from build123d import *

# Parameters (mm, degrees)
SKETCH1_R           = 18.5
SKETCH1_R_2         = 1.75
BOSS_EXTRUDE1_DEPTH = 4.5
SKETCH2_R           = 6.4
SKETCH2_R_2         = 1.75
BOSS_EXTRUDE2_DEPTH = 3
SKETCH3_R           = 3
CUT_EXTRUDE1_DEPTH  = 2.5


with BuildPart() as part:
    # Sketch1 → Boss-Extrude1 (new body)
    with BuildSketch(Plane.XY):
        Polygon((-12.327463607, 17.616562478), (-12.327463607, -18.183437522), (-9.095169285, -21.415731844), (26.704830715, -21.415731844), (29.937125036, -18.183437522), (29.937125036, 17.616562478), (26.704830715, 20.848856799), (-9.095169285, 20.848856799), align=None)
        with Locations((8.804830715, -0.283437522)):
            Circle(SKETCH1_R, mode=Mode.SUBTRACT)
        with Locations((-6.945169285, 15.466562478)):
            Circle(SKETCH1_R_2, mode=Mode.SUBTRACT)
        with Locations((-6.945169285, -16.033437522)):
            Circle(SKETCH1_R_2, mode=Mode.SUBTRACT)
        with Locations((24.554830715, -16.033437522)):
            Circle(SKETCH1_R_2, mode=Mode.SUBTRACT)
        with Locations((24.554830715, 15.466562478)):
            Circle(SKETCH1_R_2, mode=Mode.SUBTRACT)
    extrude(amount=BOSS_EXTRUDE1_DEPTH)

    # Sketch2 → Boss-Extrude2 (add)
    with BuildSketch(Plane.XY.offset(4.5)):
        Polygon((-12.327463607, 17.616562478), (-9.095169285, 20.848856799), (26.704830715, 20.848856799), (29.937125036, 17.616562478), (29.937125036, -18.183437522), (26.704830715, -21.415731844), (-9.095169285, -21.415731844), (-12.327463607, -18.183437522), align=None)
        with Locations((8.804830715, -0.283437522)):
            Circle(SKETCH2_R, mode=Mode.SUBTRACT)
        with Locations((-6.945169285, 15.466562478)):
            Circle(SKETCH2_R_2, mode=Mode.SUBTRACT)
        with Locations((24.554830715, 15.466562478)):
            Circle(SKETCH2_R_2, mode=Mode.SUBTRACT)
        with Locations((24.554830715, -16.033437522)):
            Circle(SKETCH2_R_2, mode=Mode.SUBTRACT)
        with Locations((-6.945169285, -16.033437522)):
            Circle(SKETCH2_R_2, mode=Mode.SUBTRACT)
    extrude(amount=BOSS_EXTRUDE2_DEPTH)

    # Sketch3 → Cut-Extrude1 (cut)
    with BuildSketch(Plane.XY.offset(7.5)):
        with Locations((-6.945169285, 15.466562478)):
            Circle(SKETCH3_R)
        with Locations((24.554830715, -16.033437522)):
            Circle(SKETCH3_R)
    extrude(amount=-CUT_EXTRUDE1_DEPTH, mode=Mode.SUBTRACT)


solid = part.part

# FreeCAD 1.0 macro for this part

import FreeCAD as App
import Part
import Sketcher
from FreeCAD import Vector


def add_polygon(sketch, points):
    """Adds a closed chain of lines whose ends are joined by coincident constraints."""
    first, n = sketch.GeometryCount, len(points)
    for a, b in zip(points, points[1:] + points[:1]):
        sketch.addGeometry(Part.LineSegment(App.Vector(*a, 0), App.Vector(*b, 0)), False)
    for i in range(n):
        sketch.addConstraint(Sketcher.Constraint("Coincident", first + i, 2, first + (i + 1) % n, 1))

doc = App.newDocument("Part")
params = doc.addObject("Spreadsheet::Sheet", "Params")
for row, (alias, value) in enumerate([
    ("sketch1_diameter", "37 mm"),
    ("sketch1_diameter2", "3.5 mm"),
    ("sketch1_width", "35.8 mm"),
    ("pad1_length", "4.5 mm"),
    ("sketch2_diameter", "3.5 mm"),
    ("sketch2_diameter2", "12.8 mm"),
    ("sketch2_width", "35.8 mm"),
    ("pad2_length", "3 mm"),
    ("sketch3_diameter", "6 mm"),
    ("pocket1_length", "2.5 mm"),
], start=1):
    params.set(f"A{row}", alias)
    params.set(f"B{row}", "=" + value)
    params.setAlias(f"B{row}", alias)

body = doc.addObject("PartDesign::Body", "Body")

# Sketch on XY plane
sketch1 = body.newObject("Sketcher::SketchObject", "Sketch")
sketch1.AttachmentSupport = (doc.getObject("XY_Plane"), [""])
sketch1.MapMode = "FlatFace"
add_polygon(sketch1, [(-12.3, 17.6), (-12.3, -18.2), (-9.1, -21.4), (26.7, -21.4), (29.9, -18.2), (29.9, 17.6), (26.7, 20.8), (-9.1, 20.8)])  # lines 0-7
sketch1.addGeometry(Part.Circle(Vector(-6.9, -16, 0), Vector(0, 0, 1), 1.8), False)  # 8
sketch1.addGeometry(Part.Circle(Vector(24.6, -16, 0), Vector(0, 0, 1), 1.8), False)  # 9
sketch1.addGeometry(Part.Circle(Vector(-6.9, 15.5, 0), Vector(0, 0, 1), 1.8), False)  # 10
sketch1.addGeometry(Part.Circle(Vector(8.8, -0.3, 0), Vector(0, 0, 1), 18.5), False)  # 11
sketch1.addGeometry(Part.Circle(Vector(24.6, 15.5, 0), Vector(0, 0, 1), 1.8), False)  # 12
sketch1.addConstraint(Sketcher.Constraint("Vertical", 0))
sketch1.addConstraint(Sketcher.Constraint("Horizontal", 2))
sketch1.addConstraint(Sketcher.Constraint("Vertical", 4))
sketch1.addConstraint(Sketcher.Constraint("Horizontal", 6))
sketch1.addConstraint(Sketcher.Constraint("Equal", 8, 9))
sketch1.addConstraint(Sketcher.Constraint("Equal", 9, 10))
sketch1.addConstraint(Sketcher.Constraint("Equal", 10, 12))
sketch1.addConstraint(Sketcher.Constraint("Perpendicular", 1, 3))
sketch1.addConstraint(Sketcher.Constraint("Perpendicular", 3, 5))
sketch1.addConstraint(Sketcher.Constraint("Perpendicular", 5, 7))
sketch1.addConstraint(Sketcher.Constraint("Horizontal", 8, 3, 9, 3))
sketch1.addConstraint(Sketcher.Constraint("Horizontal", 10, 3, 12, 3))
sketch1.addConstraint(Sketcher.Constraint("Horizontal", 0, 2, 3, 2))
sketch1.addConstraint(Sketcher.Constraint("Horizontal", 4, 2, 7, 2))
sketch1.addConstraint(Sketcher.Constraint("Vertical", 8, 3, 10, 3))
sketch1.addConstraint(Sketcher.Constraint("Vertical", 9, 3, 12, 3))
sketch1.addConstraint(Sketcher.Constraint("Vertical", 2, 2, 5, 2))
sketch1.addConstraint(Sketcher.Constraint("Vertical", 1, 2, 6, 2))
sketch1.addConstraint(Sketcher.Constraint("Equal", 6, 0))
sketch1.addConstraint(Sketcher.Constraint("Diameter", 11, 37.0))
sketch1.addConstraint(Sketcher.Constraint("Diameter", 8, 3.5))
sketch1.addConstraint(Sketcher.Constraint("DistanceX", 2, 1, 2, 2, 35.8))
sketch1.addConstraint(Sketcher.Constraint("DistanceX", 8, 3, 9, 3, 31.5))
sketch1.addConstraint(Sketcher.Constraint("DistanceY", 8, 3, 10, 3, 31.5))
sketch1.addConstraint(Sketcher.Constraint("DistanceY", 0, 2, 11, 3, 17.9))
sketch1.addConstraint(Sketcher.Constraint("DistanceX", 1, 2, 11, 3, 17.9))
sketch1.addConstraint(Sketcher.Constraint("DistanceX", 8, 3, 11, 3, 15.75))
sketch1.addConstraint(Sketcher.Constraint("DistanceY", 8, 3, 11, 3, 15.75))
sketch1.addConstraint(Sketcher.Constraint("DistanceX", 8, 3, -1, 1, 6.945169))
sketch1.addConstraint(Sketcher.Constraint("DistanceY", 1, 2, -1, 1, 21.415732))
sketch1.addConstraint(Sketcher.Constraint("Distance", 1, 4.571154))
sketch1.setExpression("Constraints[27]", "Params.sketch1_diameter")
sketch1.setExpression("Constraints[28]", "Params.sketch1_diameter2")
sketch1.setExpression("Constraints[29]", "Params.sketch1_width")
pad1 = body.newObject("PartDesign::Pad", "Pad")
pad1.Profile = sketch1
pad1.setExpression("Length", "Params.pad1_length")

# Sketch on XY plane
sketch2 = body.newObject("Sketcher::SketchObject", "Sketch001")
sketch2.AttachmentSupport = (doc.getObject("XY_Plane"), [""])
sketch2.MapMode = "FlatFace"
sketch2.AttachmentOffset = App.Placement(Vector(0, 0, 4.5), App.Rotation())
add_polygon(sketch2, [(-9.1, 20.8), (-12.3, 17.6), (-12.3, -18.2), (-9.1, -21.4), (26.7, -21.4), (29.9, -18.2), (29.9, 17.6), (26.7, 20.8)])  # lines 0-7
sketch2.addGeometry(Part.Circle(Vector(24.6, -16, 0), Vector(0, 0, 1), 1.8), False)  # 8
sketch2.addGeometry(Part.Circle(Vector(-6.9, -16, 0), Vector(0, 0, 1), 1.8), False)  # 9
sketch2.addGeometry(Part.Circle(Vector(24.6, 15.5, 0), Vector(0, 0, 1), 1.8), False)  # 10
sketch2.addGeometry(Part.Circle(Vector(8.8, -0.3, 0), Vector(0, 0, 1), 6.4), False)  # 11
sketch2.addGeometry(Part.Circle(Vector(-6.9, 15.5, 0), Vector(0, 0, 1), 1.8), False)  # 12
sketch2.addConstraint(Sketcher.Constraint("Vertical", 1))
sketch2.addConstraint(Sketcher.Constraint("Horizontal", 3))
sketch2.addConstraint(Sketcher.Constraint("Vertical", 5))
sketch2.addConstraint(Sketcher.Constraint("Horizontal", 7))
sketch2.addConstraint(Sketcher.Constraint("Equal", 8, 9))
sketch2.addConstraint(Sketcher.Constraint("Equal", 9, 10))
sketch2.addConstraint(Sketcher.Constraint("Equal", 10, 12))
sketch2.addConstraint(Sketcher.Constraint("Perpendicular", 0, 2))
sketch2.addConstraint(Sketcher.Constraint("Perpendicular", 2, 4))
sketch2.addConstraint(Sketcher.Constraint("Perpendicular", 4, 6))
sketch2.addConstraint(Sketcher.Constraint("Horizontal", 8, 3, 9, 3))
sketch2.addConstraint(Sketcher.Constraint("Horizontal", 10, 3, 12, 3))
sketch2.addConstraint(Sketcher.Constraint("Horizontal", 1, 2, 4, 2))
sketch2.addConstraint(Sketcher.Constraint("Horizontal", 0, 2, 5, 2))
sketch2.addConstraint(Sketcher.Constraint("Vertical", 8, 3, 10, 3))
sketch2.addConstraint(Sketcher.Constraint("Vertical", 9, 3, 12, 3))
sketch2.addConstraint(Sketcher.Constraint("Vertical", 3, 2, 6, 2))
sketch2.addConstraint(Sketcher.Constraint("Vertical", 2, 2, 7, 2))
sketch2.addConstraint(Sketcher.Constraint("Equal", 7, 1))
sketch2.addConstraint(Sketcher.Constraint("Diameter", 8, 3.5))
sketch2.addConstraint(Sketcher.Constraint("Diameter", 11, 12.8))
sketch2.addConstraint(Sketcher.Constraint("DistanceX", 3, 1, 3, 2, 35.8))
sketch2.addConstraint(Sketcher.Constraint("DistanceX", 9, 3, 8, 3, 31.5))
sketch2.addConstraint(Sketcher.Constraint("DistanceY", 8, 3, 10, 3, 31.5))
sketch2.addConstraint(Sketcher.Constraint("DistanceY", 11, 3, 0, 2, 17.9))
sketch2.addConstraint(Sketcher.Constraint("DistanceX", 2, 2, 11, 3, 17.9))
sketch2.addConstraint(Sketcher.Constraint("DistanceX", 9, 3, 11, 3, 15.75))
sketch2.addConstraint(Sketcher.Constraint("DistanceY", 9, 3, 11, 3, 15.75))
sketch2.addConstraint(Sketcher.Constraint("DistanceX", -1, 1, 8, 3, 24.554831))
sketch2.addConstraint(Sketcher.Constraint("DistanceY", 2, 2, -1, 1, 21.415732))
sketch2.addConstraint(Sketcher.Constraint("Distance", 0, 4.571154))
sketch2.setExpression("Constraints[27]", "Params.sketch2_diameter")
sketch2.setExpression("Constraints[28]", "Params.sketch2_diameter2")
sketch2.setExpression("Constraints[29]", "Params.sketch2_width")
pad2 = body.newObject("PartDesign::Pad", "Pad001")
pad2.Profile = sketch2
pad2.setExpression("Length", "Params.pad2_length")

# Sketch on XY plane
sketch3 = body.newObject("Sketcher::SketchObject", "Sketch002")
sketch3.AttachmentSupport = (doc.getObject("XY_Plane"), [""])
sketch3.MapMode = "FlatFace"
sketch3.AttachmentOffset = App.Placement(Vector(0, 0, 7.5), App.Rotation())
sketch3.addGeometry(Part.Circle(Vector(-6.9, 15.5, 0), Vector(0, 0, 1), 3), False)
sketch3.addGeometry(Part.Circle(Vector(24.6, -16, 0), Vector(0, 0, 1), 3), False)
sketch3.addConstraint(Sketcher.Constraint("Equal", 0, 1))
sketch3.addConstraint(Sketcher.Constraint("Diameter", 0, 6.0))
sketch3.addConstraint(Sketcher.Constraint("DistanceX", 0, 3, 1, 3, 31.5))
sketch3.addConstraint(Sketcher.Constraint("DistanceY", 1, 3, 0, 3, 31.5))
sketch3.addConstraint(Sketcher.Constraint("DistanceX", 0, 3, -1, 1, 6.945169))
sketch3.addConstraint(Sketcher.Constraint("DistanceY", -1, 1, 0, 3, 15.466562))
sketch3.setExpression("Constraints[1]", "Params.sketch3_diameter")
pocket1 = body.newObject("PartDesign::Pocket", "Pocket")
pocket1.Profile = sketch3
pocket1.setExpression("Length", "Params.pocket1_length")

doc.recompute()
